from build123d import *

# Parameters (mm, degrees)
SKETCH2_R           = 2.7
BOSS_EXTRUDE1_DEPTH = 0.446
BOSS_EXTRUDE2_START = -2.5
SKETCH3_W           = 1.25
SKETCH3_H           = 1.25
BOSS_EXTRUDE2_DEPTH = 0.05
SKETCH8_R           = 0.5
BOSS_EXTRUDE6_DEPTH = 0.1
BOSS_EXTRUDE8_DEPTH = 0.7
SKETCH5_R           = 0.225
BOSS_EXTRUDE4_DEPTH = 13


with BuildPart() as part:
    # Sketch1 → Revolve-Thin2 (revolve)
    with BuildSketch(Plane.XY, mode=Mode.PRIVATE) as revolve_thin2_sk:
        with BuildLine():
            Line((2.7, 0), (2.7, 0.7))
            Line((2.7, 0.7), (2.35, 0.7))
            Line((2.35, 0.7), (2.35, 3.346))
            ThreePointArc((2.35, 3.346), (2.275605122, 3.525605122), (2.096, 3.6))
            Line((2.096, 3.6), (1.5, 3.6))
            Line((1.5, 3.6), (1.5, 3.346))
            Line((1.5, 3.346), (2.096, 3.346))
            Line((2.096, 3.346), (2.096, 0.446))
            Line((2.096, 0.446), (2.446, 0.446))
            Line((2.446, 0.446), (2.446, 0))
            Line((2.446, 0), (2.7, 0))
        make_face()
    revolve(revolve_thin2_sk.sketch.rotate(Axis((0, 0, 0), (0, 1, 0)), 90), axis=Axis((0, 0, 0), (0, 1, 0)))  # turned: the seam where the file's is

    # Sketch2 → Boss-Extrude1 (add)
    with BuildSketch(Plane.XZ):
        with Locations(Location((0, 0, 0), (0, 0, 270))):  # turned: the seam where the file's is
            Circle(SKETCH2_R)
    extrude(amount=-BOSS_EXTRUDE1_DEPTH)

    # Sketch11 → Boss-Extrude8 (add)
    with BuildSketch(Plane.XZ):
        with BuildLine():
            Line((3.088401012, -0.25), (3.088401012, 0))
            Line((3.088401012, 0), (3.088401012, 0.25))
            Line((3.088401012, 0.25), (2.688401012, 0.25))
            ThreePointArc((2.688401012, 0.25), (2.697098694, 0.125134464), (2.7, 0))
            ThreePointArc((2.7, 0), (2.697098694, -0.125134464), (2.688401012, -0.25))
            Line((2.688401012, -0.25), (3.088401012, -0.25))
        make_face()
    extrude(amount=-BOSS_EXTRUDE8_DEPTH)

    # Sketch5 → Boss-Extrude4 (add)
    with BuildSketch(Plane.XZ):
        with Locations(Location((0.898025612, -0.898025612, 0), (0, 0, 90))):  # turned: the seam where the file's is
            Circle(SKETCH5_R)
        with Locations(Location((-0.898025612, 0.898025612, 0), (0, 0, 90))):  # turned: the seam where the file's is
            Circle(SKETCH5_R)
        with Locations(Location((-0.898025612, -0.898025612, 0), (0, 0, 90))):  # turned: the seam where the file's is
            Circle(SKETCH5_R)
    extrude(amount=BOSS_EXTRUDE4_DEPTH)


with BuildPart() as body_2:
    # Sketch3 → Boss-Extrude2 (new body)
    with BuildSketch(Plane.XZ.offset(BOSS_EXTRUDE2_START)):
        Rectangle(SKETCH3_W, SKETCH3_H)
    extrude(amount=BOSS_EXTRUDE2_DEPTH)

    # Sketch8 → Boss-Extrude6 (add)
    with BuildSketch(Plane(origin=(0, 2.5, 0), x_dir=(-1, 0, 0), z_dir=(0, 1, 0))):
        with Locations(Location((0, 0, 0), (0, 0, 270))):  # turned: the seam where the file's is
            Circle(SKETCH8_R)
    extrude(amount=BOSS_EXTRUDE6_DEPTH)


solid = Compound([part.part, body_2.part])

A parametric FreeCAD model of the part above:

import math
import FreeCAD as App
import Part
import Sketcher


def add_polygon(sketch, points):
    """Adds a closed chain of lines whose ends are joined by coincident constraints."""
    first, n = sketch.GeometryCount, len(points)
    for a, b in zip(points, points[1:] + points[:1]):
        sketch.addGeometry(Part.LineSegment(App.Vector(*a, 0), App.Vector(*b, 0)), False)
    for i in range(n):
        sketch.addConstraint(Sketcher.Constraint("Coincident", first + i, 2, first + (i + 1) % n, 1))

doc = App.newDocument("Part")
body = doc.addObject("PartDesign::Body", "Body")

# Sketch on XY plane
sketch1 = body.newObject("Sketcher::SketchObject", "Sketch")
sketch1.AttachmentSupport = (doc.getObject("XY_Plane"), [""])
sketch1.MapMode = "FlatFace"
sketch1.addGeometry(Part.LineSegment(App.Vector(2.7, 0, 0), App.Vector(2.7, 0.7, 0)), False)
sketch1.addGeometry(Part.LineSegment(App.Vector(2.7, 0.7, 0), App.Vector(2.35, 0.7, 0)), False)
sketch1.addGeometry(Part.LineSegment(App.Vector(2.35, 0.7, 0), App.Vector(2.35, 3.35, 0)), False)
sketch1.addGeometry(Part.ArcOfCircle(Part.Circle(App.Vector(2.1, 3.35, 0), App.Vector(0, 0, 1), 0.25), math.radians(0), math.radians(90)), False)
sketch1.addGeometry(Part.LineSegment(App.Vector(2.1, 3.6, 0), App.Vector(1.5, 3.6, 0)), False)
sketch1.addGeometry(Part.LineSegment(App.Vector(1.5, 3.6, 0), App.Vector(1.5, 3.35, 0)), False)
sketch1.addGeometry(Part.LineSegment(App.Vector(1.5, 3.35, 0), App.Vector(2.1, 3.35, 0)), False)
sketch1.addGeometry(Part.LineSegment(App.Vector(2.1, 3.35, 0), App.Vector(2.1, 0.45, 0)), False)
sketch1.addGeometry(Part.LineSegment(App.Vector(2.1, 0.45, 0), App.Vector(2.45, 0.45, 0)), False)
sketch1.addGeometry(Part.LineSegment(App.Vector(2.45, 0.45, 0), App.Vector(2.45, 0, 0)), False)
sketch1.addGeometry(Part.LineSegment(App.Vector(2.45, 0, 0), App.Vector(2.7, 0, 0)), False)
sketch1.addConstraint(Sketcher.Constraint("Coincident", 0, 2, 1, 1))
sketch1.addConstraint(Sketcher.Constraint("Coincident", 1, 2, 2, 1))
sketch1.addConstraint(Sketcher.Constraint("Tangent", 2, 2, 3, 1))
sketch1.addConstraint(Sketcher.Constraint("Tangent", 3, 2, 4, 1))
sketch1.addConstraint(Sketcher.Constraint("Coincident", 4, 2, 5, 1))
sketch1.addConstraint(Sketcher.Constraint("Coincident", 5, 2, 6, 1))
sketch1.addConstraint(Sketcher.Constraint("Coincident", 6, 2, 7, 1))
sketch1.addConstraint(Sketcher.Constraint("Coincident", 7, 2, 8, 1))
sketch1.addConstraint(Sketcher.Constraint("Coincident", 8, 2, 9, 1))
sketch1.addConstraint(Sketcher.Constraint("Coincident", 9, 2, 10, 1))
sketch1.addConstraint(Sketcher.Constraint("Coincident", 10, 2, 0, 1))
sketch1.addConstraint(Sketcher.Constraint("Vertical", 0))
sketch1.addConstraint(Sketcher.Constraint("Horizontal", 1))
sketch1.addConstraint(Sketcher.Constraint("Vertical", 2))
sketch1.addConstraint(Sketcher.Constraint("Horizontal", 4))
sketch1.addConstraint(Sketcher.Constraint("Vertical", 5))
sketch1.addConstraint(Sketcher.Constraint("Horizontal", 6))
sketch1.addConstraint(Sketcher.Constraint("Vertical", 7))
sketch1.addConstraint(Sketcher.Constraint("Horizontal", 8))
sketch1.addConstraint(Sketcher.Constraint("Vertical", 9))
sketch1.addConstraint(Sketcher.Constraint("Horizontal", 10))
sketch1.addConstraint(Sketcher.Constraint("Coincident", 6, 2, 3, 3))
sketch1.addConstraint(Sketcher.Constraint("PointOnObject", 9, 2, -1))
sketch1.addConstraint(Sketcher.Constraint("Equal", 1, 8))
sketch1.addConstraint(Sketcher.Constraint("DistanceY", 0, 1, 0, 2, 0.7))
sketch1.addConstraint(Sketcher.Constraint("DistanceY", 7, 2, 7, 1, 2.9))
sketch1.addConstraint(Sketcher.Constraint("Radius", 3, 0.254))
sketch1.addConstraint(Sketcher.Constraint("DistanceX", 1, 2, 1, 1, 0.35))
sketch1.addConstraint(Sketcher.Constraint("DistanceX", -1, 1, 0, 2, 2.7))
sketch1.addConstraint(Sketcher.Constraint("DistanceY", -1, 1, 3, 2, 3.6))
sketch1.addConstraint(Sketcher.Constraint("DistanceX", -1, 1, 4, 2, 1.5))
revolution = body.newObject("PartDesign::Revolution", "Revolution")
revolution.Profile = sketch1
revolution.ReferenceAxis = (sketch1, ["V_Axis"])
revolution.Angle = 360

# Sketch on XZ plane
sketch2 = body.newObject("Sketcher::SketchObject", "Sketch001")
sketch2.AttachmentSupport = (doc.getObject("XZ_Plane"), [""])
sketch2.MapMode = "FlatFace"
sketch2.addGeometry(Part.Circle(App.Vector(0, 0, 0), App.Vector(0, 0, 1), 2.7), False)
sketch2.addConstraint(Sketcher.Constraint("Coincident", 0, 3, -1, 1))
sketch2.addConstraint(Sketcher.Constraint("Diameter", 0, 5.4))
pad1 = body.newObject("PartDesign::Pad", "Pad")
pad1.Profile = sketch2
pad1.Length = 0.446
pad1.Reversed = True

# Sketch on XZ plane
sketch3 = body.newObject("Sketcher::SketchObject", "Sketch002")
sketch3.AttachmentSupport = (doc.getObject("XZ_Plane"), [""])
sketch3.MapMode = "FlatFace"
sketch3.addGeometry(Part.LineSegment(App.Vector(3.09, -0.25, 0), App.Vector(3.09, 0.25, 0)), False)
sketch3.addGeometry(Part.LineSegment(App.Vector(3.09, 0.25, 0), App.Vector(2.69, 0.25, 0)), False)
sketch3.addGeometry(Part.ArcOfCircle(Part.Circle(App.Vector(0, 0, 0), App.Vector(0, 0, 1), 2.7), math.radians(0), math.radians(5.31)), False)
sketch3.addGeometry(Part.ArcOfCircle(Part.Circle(App.Vector(0, 0, 0), App.Vector(0, 0, 1), 2.7), math.radians(-5.31), math.radians(0)), False)
sketch3.addGeometry(Part.LineSegment(App.Vector(2.69, -0.25, 0), App.Vector(3.09, -0.25, 0)), False)
sketch3.addConstraint(Sketcher.Constraint("Coincident", 0, 2, 1, 1))
sketch3.addConstraint(Sketcher.Constraint("Coincident", 1, 2, 2, 2))
sketch3.addConstraint(Sketcher.Constraint("Tangent", 2, 1, 3, 2))
sketch3.addConstraint(Sketcher.Constraint("Coincident", 3, 1, 4, 1))
sketch3.addConstraint(Sketcher.Constraint("Coincident", 4, 2, 0, 1))
sketch3.addConstraint(Sketcher.Constraint("Vertical", 0))
sketch3.addConstraint(Sketcher.Constraint("Horizontal", 1))
sketch3.addConstraint(Sketcher.Constraint("Horizontal", 4))
sketch3.addConstraint(Sketcher.Constraint("Coincident", 2, 3, -1, 1))
sketch3.addConstraint(Sketcher.Constraint("Equal", 2, 3))
sketch3.addConstraint(Sketcher.Constraint("PointOnObject", 2, 1, -1))
sketch3.addConstraint(Sketcher.Constraint("Vertical", 1, 2, 3, 1))
sketch3.addConstraint(Sketcher.Constraint("Radius", 2, 2.7))
sketch3.addConstraint(Sketcher.Constraint("DistanceX", 1, 2, 1, 1, 0.4))
sketch3.addConstraint(Sketcher.Constraint("DistanceY", 0, 1, 0, 2, 0.5))
pad2 = body.newObject("PartDesign::Pad", "Pad001")
pad2.Profile = sketch3
pad2.Length = 0.7
pad2.Reversed = True

# Sketch on XZ plane
sketch4 = body.newObject("Sketcher::SketchObject", "Sketch003")
sketch4.AttachmentSupport = (doc.getObject("XZ_Plane"), [""])
sketch4.MapMode = "FlatFace"
sketch4.addGeometry(Part.Circle(App.Vector(0.9, -0.9, 0), App.Vector(0, 0, 1), 0.23), False)
sketch4.addGeometry(Part.Circle(App.Vector(-0.9, 0.9, 0), App.Vector(0, 0, 1), 0.23), False)
sketch4.addGeometry(Part.Circle(App.Vector(-0.9, -0.9, 0), App.Vector(0, 0, 1), 0.23), False)
sketch4.addConstraint(Sketcher.Constraint("Equal", 0, 1))
sketch4.addConstraint(Sketcher.Constraint("Equal", 1, 2))
sketch4.addConstraint(Sketcher.Constraint("Symmetric", 0, 3, 1, 3, -1, 1))
sketch4.addConstraint(Sketcher.Constraint("Symmetric", 0, 3, 2, 3, -2))
sketch4.addConstraint(Sketcher.Constraint("Diameter", 0, 0.45))
sketch4.addConstraint(Sketcher.Constraint("DistanceX", 1, 3, 0, 3, 1.796051))
sketch4.addConstraint(Sketcher.Constraint("DistanceY", 0, 3, 1, 3, 1.796051))
pad3 = body.newObject("PartDesign::Pad", "Pad002")
pad3.Profile = sketch4
pad3.Length = 13
body2 = doc.addObject("PartDesign::Body", "Body001")

# Sketch on XZ plane
sketch5 = body2.newObject("Sketcher::SketchObject", "Sketch004")
sketch5.AttachmentSupport = (doc.getObject("XZ_Plane001"), [""])
sketch5.MapMode = "FlatFace"
sketch5.AttachmentOffset = App.Placement(App.Vector(0, 0, -2.5), App.Rotation())
add_polygon(sketch5, [(-0.6, 0.6), (-0.6, -0.6), (0.6, -0.6), (0.6, 0.6)])  # lines 0-3
sketch5.addConstraint(Sketcher.Constraint("Vertical", 0))
sketch5.addConstraint(Sketcher.Constraint("Horizontal", 1))
sketch5.addConstraint(Sketcher.Constraint("Vertical", 2))
sketch5.addConstraint(Sketcher.Constraint("Horizontal", 3))
sketch5.addConstraint(Sketcher.Constraint("Symmetric", 0, 2, 2, 2, -1, 1))
sketch5.addConstraint(Sketcher.Constraint("Equal", 3, 0))
sketch5.addConstraint(Sketcher.Constraint("DistanceX", 1, 1, 1, 2, 1.25))
pad4 = body2.newObject("PartDesign::Pad", "Pad003")
pad4.Profile = sketch5
pad4.Length = 0.05

# Sketch on XZ plane
sketch6 = body2.newObject("Sketcher::SketchObject", "Sketch005")
sketch6.AttachmentSupport = (doc.getObject("XZ_Plane001"), [""])
sketch6.MapMode = "FlatFace"
sketch6.AttachmentOffset = App.Placement(App.Vector(0, 0, -2.5), App.Rotation())
sketch6.addGeometry(Part.Circle(App.Vector(0, 0, 0), App.Vector(0, 0, 1), 0.5), False)
sketch6.addConstraint(Sketcher.Constraint("Coincident", 0, 3, -1, 1))
sketch6.addConstraint(Sketcher.Constraint("Diameter", 0, 1.0))
pad5 = body2.newObject("PartDesign::Pad", "Pad004")
pad5.Profile = sketch6
pad5.Length = 0.1
pad5.Reversed = True

doc.recompute()
